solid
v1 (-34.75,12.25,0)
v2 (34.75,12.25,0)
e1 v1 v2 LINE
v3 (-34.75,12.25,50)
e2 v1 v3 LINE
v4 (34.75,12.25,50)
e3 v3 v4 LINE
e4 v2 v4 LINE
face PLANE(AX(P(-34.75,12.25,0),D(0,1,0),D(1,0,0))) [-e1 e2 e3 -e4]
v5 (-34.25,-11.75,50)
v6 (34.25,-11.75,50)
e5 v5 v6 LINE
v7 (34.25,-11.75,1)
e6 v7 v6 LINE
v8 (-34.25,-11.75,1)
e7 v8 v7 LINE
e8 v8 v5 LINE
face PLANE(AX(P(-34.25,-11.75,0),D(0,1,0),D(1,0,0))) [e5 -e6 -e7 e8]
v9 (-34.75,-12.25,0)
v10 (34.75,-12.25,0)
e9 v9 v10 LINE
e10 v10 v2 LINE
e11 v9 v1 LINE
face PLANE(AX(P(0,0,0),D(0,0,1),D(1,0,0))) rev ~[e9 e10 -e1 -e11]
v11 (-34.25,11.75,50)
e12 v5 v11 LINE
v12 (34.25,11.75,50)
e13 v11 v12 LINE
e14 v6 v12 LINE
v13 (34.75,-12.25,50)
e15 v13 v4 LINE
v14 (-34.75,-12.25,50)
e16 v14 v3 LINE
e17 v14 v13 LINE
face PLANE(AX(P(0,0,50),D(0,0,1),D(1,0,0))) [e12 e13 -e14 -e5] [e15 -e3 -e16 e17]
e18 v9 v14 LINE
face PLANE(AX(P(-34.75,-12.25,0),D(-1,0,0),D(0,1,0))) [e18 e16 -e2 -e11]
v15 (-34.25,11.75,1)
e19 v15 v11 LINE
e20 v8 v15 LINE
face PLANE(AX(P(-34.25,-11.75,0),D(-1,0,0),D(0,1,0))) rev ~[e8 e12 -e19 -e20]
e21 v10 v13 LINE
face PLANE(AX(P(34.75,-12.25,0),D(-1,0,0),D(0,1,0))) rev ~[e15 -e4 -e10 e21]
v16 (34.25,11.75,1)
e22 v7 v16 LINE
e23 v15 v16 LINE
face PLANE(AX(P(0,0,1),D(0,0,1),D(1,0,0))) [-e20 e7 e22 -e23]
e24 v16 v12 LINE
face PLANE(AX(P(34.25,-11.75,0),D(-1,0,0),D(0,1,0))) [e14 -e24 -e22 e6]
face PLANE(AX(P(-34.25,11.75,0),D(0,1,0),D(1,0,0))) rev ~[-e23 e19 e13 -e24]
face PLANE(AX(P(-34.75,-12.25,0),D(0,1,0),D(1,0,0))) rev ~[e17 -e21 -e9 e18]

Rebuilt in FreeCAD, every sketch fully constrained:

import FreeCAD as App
import Part
import Sketcher
from FreeCAD import Vector

doc = App.newDocument("Part")
body = doc.addObject("PartDesign::Body", "Body")

sketch1 = body.newObject("Sketcher::SketchObject", "Sketch")
sketch1.AttachmentSupport = (doc.getObject("XY_Plane"), [""])
sketch1.MapMode = "FlatFace"
sketch1.addGeometry([
    Part.LineSegment(Vector(-34, 12, 0), Vector(-34, -12, 0)),
    Part.LineSegment(Vector(-34, -12, 0), Vector(34, -12, 0)),
    Part.LineSegment(Vector(34, -12, 0), Vector(34, 12, 0)),
    Part.LineSegment(Vector(34, 12, 0), Vector(-34, 12, 0)),
], False)
sketch1.addConstraint([
    Sketcher.Constraint("Coincident", 0, 2, 1, 1),
    Sketcher.Constraint("Coincident", 1, 2, 2, 1),
    Sketcher.Constraint("Coincident", 2, 2, 3, 1),
    Sketcher.Constraint("Coincident", 3, 2, 0, 1),
    Sketcher.Constraint("Vertical", 0),
    Sketcher.Constraint("Horizontal", 1),
    Sketcher.Constraint("Vertical", 2),
    Sketcher.Constraint("Horizontal", 3),
    Sketcher.Constraint("Symmetric", 0, 2, 2, 2, -1, 1),
    Sketcher.Constraint("DistanceX", 1, 1, 1, 2, 68.5),
    Sketcher.Constraint("DistanceY", 0, 2, 0, 1, 23.5),
])
pad1 = body.newObject("PartDesign::Pad", "Pad")
pad1.Profile = sketch1
pad1.Length = 1

sketch2 = body.newObject("Sketcher::SketchObject", "Sketch001")
sketch2.AttachmentSupport = (doc.getObject("XY_Plane"), [""])
sketch2.MapMode = "FlatFace"
sketch2.addGeometry([
    Part.LineSegment(Vector(-35, 12, 0), Vector(-35, -12, 0)),
    Part.LineSegment(Vector(-35, -12, 0), Vector(35, -12, 0)),
    Part.LineSegment(Vector(35, -12, 0), Vector(35, 12, 0)),
    Part.LineSegment(Vector(35, 12, 0), Vector(-35, 12, 0)),
    Part.LineSegment(Vector(34, -12, 0), Vector(-34, -12, 0)),
    Part.LineSegment(Vector(-34, -12, 0), Vector(-34, 12, 0)),
    Part.LineSegment(Vector(-34, 12, 0), Vector(34, 12, 0)),
    Part.LineSegment(Vector(34, 12, 0), Vector(34, -12, 0)),
], False)
sketch2.addConstraint([
    Sketcher.Constraint("Coincident", 0, 2, 1, 1),
    Sketcher.Constraint("Coincident", 1, 2, 2, 1),
    Sketcher.Constraint("Coincident", 2, 2, 3, 1),
    Sketcher.Constraint("Coincident", 3, 2, 0, 1),
    Sketcher.Constraint("Coincident", 4, 2, 5, 1),
    Sketcher.Constraint("Coincident", 5, 2, 6, 1),
    Sketcher.Constraint("Coincident", 6, 2, 7, 1),
    Sketcher.Constraint("Coincident", 7, 2, 4, 1),
    Sketcher.Constraint("Vertical", 0),
    Sketcher.Constraint("Horizontal", 1),
    Sketcher.Constraint("Vertical", 2),
    Sketcher.Constraint("Horizontal", 3),
    Sketcher.Constraint("Horizontal", 4),
    Sketcher.Constraint("Vertical", 5),
    Sketcher.Constraint("Horizontal", 6),
    Sketcher.Constraint("Vertical", 7),
    Sketcher.Constraint("Symmetric", 0, 2, 2, 2, -1, 1),
    Sketcher.Constraint("Symmetric", 4, 2, 6, 2, -1, 1),
    Sketcher.Constraint("DistanceX", 1, 1, 1, 2, 69.5),
    Sketcher.Constraint("DistanceX", 4, 2, 4, 1, 68.5),
    Sketcher.Constraint("DistanceY", 0, 2, 0, 1, 24.5),
    Sketcher.Constraint("DistanceY", 5, 1, 5, 2, 23.5),
])
pad2 = body.newObject("PartDesign::Pad", "Pad001")
pad2.Profile = sketch2
pad2.Length = 50

doc.recompute()
